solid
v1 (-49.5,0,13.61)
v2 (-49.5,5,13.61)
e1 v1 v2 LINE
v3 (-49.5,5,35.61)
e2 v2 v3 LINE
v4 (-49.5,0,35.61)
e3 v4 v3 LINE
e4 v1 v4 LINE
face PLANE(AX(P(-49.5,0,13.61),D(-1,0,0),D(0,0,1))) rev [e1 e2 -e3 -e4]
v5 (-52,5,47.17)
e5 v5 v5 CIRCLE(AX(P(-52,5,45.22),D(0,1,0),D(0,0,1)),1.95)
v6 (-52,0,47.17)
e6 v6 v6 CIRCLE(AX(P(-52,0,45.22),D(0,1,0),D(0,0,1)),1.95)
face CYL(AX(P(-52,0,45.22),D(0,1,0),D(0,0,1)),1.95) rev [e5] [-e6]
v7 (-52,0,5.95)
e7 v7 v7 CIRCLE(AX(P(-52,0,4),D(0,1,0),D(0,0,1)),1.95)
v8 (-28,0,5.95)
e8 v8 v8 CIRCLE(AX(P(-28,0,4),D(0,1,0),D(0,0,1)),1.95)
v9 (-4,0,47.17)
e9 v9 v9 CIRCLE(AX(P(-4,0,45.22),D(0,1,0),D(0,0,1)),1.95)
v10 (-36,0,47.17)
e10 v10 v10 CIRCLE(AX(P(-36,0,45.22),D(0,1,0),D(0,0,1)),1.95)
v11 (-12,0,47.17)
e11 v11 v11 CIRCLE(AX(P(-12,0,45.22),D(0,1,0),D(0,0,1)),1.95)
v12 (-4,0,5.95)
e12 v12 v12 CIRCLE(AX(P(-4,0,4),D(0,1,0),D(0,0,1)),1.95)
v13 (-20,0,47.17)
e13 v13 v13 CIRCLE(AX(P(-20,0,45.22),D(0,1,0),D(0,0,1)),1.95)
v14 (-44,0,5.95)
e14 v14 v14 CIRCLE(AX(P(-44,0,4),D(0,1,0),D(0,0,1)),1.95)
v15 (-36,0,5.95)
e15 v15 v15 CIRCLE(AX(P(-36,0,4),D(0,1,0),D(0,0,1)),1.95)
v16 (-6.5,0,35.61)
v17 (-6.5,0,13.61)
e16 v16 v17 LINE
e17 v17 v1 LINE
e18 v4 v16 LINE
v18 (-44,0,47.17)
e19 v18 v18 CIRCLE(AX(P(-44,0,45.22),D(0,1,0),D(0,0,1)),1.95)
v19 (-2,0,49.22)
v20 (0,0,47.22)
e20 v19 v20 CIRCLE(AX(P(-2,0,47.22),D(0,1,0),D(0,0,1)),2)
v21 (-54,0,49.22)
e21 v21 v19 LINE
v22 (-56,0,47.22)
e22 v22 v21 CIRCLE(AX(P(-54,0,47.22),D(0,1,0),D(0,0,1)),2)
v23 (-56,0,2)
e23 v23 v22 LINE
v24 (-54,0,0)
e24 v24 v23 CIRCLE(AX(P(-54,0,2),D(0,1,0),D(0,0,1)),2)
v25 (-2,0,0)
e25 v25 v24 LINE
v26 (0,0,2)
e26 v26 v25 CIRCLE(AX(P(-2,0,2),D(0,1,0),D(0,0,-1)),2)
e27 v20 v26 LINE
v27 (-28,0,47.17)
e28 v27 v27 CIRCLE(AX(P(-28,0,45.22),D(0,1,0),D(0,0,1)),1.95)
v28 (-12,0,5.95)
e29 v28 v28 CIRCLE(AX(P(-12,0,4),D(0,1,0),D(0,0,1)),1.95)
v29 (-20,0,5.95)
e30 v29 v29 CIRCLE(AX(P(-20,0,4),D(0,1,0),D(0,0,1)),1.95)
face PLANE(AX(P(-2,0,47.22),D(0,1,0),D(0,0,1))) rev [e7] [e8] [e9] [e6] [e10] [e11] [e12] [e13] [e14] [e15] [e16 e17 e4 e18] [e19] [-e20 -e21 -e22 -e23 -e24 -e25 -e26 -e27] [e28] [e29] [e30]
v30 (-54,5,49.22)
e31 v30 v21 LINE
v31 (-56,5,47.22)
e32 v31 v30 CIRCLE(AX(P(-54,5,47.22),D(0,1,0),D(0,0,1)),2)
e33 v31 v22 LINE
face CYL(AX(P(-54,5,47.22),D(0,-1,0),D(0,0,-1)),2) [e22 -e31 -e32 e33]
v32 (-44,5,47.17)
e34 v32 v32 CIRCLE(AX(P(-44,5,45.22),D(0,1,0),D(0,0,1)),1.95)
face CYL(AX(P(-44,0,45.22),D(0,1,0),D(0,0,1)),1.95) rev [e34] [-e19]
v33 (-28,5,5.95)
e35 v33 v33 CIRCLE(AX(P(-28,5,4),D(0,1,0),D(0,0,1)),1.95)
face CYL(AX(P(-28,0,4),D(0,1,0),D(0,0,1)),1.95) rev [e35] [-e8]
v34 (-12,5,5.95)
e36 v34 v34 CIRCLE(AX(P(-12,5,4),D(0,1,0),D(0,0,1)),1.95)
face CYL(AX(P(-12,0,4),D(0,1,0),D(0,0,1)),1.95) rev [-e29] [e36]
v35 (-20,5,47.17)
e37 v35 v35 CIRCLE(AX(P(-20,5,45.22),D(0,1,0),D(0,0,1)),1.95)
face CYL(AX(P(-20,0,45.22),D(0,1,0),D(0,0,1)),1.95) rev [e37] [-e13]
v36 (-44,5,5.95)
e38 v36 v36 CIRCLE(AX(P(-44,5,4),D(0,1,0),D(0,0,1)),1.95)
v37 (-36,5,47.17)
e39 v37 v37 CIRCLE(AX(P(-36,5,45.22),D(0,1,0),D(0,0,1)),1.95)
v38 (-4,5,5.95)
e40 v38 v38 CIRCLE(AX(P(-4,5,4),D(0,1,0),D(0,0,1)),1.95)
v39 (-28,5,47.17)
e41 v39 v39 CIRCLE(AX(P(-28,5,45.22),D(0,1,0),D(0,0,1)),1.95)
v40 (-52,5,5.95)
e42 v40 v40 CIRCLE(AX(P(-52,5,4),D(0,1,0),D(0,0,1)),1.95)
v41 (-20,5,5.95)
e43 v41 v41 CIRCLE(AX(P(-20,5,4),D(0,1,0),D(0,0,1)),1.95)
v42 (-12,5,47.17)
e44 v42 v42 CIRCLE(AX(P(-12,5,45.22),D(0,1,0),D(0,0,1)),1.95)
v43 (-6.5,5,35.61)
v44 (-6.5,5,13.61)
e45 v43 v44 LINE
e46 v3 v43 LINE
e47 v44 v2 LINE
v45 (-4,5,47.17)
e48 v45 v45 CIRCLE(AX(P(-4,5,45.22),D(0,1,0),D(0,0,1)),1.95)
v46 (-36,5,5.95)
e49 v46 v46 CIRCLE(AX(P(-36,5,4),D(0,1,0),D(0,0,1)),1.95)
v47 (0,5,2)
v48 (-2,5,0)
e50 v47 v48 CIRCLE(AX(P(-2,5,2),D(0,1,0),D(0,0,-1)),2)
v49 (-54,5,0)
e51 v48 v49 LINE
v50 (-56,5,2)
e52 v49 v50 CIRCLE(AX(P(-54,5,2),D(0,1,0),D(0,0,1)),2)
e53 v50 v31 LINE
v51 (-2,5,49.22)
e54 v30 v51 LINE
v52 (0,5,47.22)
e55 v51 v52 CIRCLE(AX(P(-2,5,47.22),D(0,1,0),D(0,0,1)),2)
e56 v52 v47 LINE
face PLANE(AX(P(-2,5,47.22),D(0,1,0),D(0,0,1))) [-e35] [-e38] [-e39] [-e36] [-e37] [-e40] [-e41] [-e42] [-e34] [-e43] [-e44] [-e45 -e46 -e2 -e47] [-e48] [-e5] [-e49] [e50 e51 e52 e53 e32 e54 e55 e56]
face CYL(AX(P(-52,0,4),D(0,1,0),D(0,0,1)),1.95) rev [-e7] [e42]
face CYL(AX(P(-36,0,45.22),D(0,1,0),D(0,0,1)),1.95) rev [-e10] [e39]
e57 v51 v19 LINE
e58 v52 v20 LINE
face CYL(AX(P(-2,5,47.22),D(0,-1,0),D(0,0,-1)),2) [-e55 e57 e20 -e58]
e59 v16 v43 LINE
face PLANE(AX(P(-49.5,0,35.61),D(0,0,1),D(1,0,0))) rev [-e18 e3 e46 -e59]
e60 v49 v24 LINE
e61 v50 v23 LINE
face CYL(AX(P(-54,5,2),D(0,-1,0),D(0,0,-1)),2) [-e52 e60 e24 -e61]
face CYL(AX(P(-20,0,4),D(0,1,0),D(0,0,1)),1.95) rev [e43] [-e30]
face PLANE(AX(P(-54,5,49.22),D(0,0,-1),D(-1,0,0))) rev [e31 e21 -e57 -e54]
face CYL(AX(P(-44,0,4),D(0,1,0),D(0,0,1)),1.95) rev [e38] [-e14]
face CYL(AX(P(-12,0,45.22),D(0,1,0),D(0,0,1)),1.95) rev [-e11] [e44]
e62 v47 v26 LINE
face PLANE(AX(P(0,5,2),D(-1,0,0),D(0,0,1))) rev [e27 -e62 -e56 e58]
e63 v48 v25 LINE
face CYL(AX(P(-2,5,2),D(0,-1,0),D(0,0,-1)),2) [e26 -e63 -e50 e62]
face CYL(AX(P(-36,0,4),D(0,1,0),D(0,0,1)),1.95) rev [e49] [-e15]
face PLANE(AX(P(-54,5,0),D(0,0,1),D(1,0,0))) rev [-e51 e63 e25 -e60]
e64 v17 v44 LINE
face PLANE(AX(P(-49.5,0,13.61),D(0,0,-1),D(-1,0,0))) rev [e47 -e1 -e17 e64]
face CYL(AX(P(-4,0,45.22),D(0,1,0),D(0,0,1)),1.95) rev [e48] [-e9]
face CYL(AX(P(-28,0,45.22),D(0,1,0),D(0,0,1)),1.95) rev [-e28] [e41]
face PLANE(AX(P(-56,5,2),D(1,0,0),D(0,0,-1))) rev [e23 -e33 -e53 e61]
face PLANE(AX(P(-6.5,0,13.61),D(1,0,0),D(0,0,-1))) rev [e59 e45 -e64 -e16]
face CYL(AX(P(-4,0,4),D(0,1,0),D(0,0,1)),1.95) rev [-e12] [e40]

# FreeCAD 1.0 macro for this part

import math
import FreeCAD as App
import Part
import Sketcher
Q = App.Units.Quantity

doc = App.newDocument("Part")
params = doc.addObject("Spreadsheet::Sheet", "Params")
for row, (alias, value) in enumerate([
    ("sketch1_radius", "2 mm"),
    ("sketch1_width", "52 mm"),
    ("sketch1_height", "45.22 mm"),
    ("pad1_length", "5 mm"),
    ("sketch2_diameter", "3.9 mm"),
    ("sketch2_width", "43 mm"),
    ("sketch2_height", "22 mm"),
], start=1):
    params.set(f"A{row}", alias)
    params.set(f"B{row}", "=" + value)
    params.setAlias(f"B{row}", alias)

body = doc.addObject("PartDesign::Body", "Body")

# Sketch on XZ plane
sketch1 = body.newObject("Sketcher::SketchObject", "Sketch")
sketch1.AttachmentSupport = (doc.getObject("XZ_Plane"), [""])
sketch1.MapMode = "FlatFace"
sketch1.addGeometry(Part.LineSegment(App.Vector(-2, 0, 0), App.Vector(-54, 0, 0)), False)
sketch1.addGeometry(Part.ArcOfCircle(Part.Circle(App.Vector(-54, 2, 0), App.Vector(0, 0, 1), 2), math.radians(-180), math.radians(-90)), False)
sketch1.addGeometry(Part.LineSegment(App.Vector(-56, 2, 0), App.Vector(-56, 47.2, 0)), False)
sketch1.addGeometry(Part.ArcOfCircle(Part.Circle(App.Vector(-54, 47.2, 0), App.Vector(0, 0, 1), 2), math.radians(90), math.radians(180)), False)
sketch1.addGeometry(Part.LineSegment(App.Vector(-54, 49.2, 0), App.Vector(-2, 49.2, 0)), False)
sketch1.addGeometry(Part.ArcOfCircle(Part.Circle(App.Vector(-2, 47.2, 0), App.Vector(0, 0, 1), 2), math.radians(0), math.radians(90)), False)
sketch1.addGeometry(Part.LineSegment(App.Vector(0, 47.2, 0), App.Vector(0, 2, 0)), False)
sketch1.addGeometry(Part.ArcOfCircle(Part.Circle(App.Vector(-2, 2, 0), App.Vector(0, 0, 1), 2), math.radians(-90), math.radians(0)), False)
sketch1.addConstraint(Sketcher.Constraint("Tangent", 0, 2, 1, 2))
sketch1.addConstraint(Sketcher.Constraint("Tangent", 1, 1, 2, 1))
sketch1.addConstraint(Sketcher.Constraint("Tangent", 2, 2, 3, 2))
sketch1.addConstraint(Sketcher.Constraint("Tangent", 3, 1, 4, 1))
sketch1.addConstraint(Sketcher.Constraint("Tangent", 4, 2, 5, 2))
sketch1.addConstraint(Sketcher.Constraint("Tangent", 5, 1, 6, 1))
sketch1.addConstraint(Sketcher.Constraint("Tangent", 6, 2, 7, 2))
sketch1.addConstraint(Sketcher.Constraint("Tangent", 7, 1, 0, 1))
sketch1.addConstraint(Sketcher.Constraint("Horizontal", 0))
sketch1.addConstraint(Sketcher.Constraint("Vertical", 2))
sketch1.addConstraint(Sketcher.Constraint("Horizontal", 4))
sketch1.addConstraint(Sketcher.Constraint("Vertical", 6))
sketch1.addConstraint(Sketcher.Constraint("Equal", 1, 3))
sketch1.addConstraint(Sketcher.Constraint("Equal", 3, 5))
sketch1.addConstraint(Sketcher.Constraint("Equal", 5, 7))
sketch1.addConstraint(Sketcher.Constraint("PointOnObject", 0, 2, -1))
sketch1.addConstraint(Sketcher.Constraint("PointOnObject", 5, 1, -2))
sketch1.addConstraint(Sketcher.Constraint("Radius", 1, Q("2 mm")))
sketch1.addConstraint(Sketcher.Constraint("DistanceX", 0, 2, 0, 1, Q("52 mm")))
sketch1.addConstraint(Sketcher.Constraint("DistanceY", 2, 1, 2, 2, Q("45.22 mm")))
sketch1.setExpression("Constraints[17]", "Params.sketch1_radius")
sketch1.setExpression("Constraints[18]", "Params.sketch1_width")
sketch1.setExpression("Constraints[19]", "Params.sketch1_height")
pad1 = body.newObject("PartDesign::Pad", "Pad")
pad1.Profile = sketch1
pad1.setExpression("Length", "Params.pad1_length")
pad1.Reversed = True

# Sketch on XZ plane
sketch2 = body.newObject("Sketcher::SketchObject", "Sketch001")
sketch2.AttachmentSupport = (doc.getObject("XZ_Plane"), [""])
sketch2.MapMode = "FlatFace"
sketch2.AttachmentOffset = App.Placement(App.Vector(0, 0, -5), App.Rotation())
sketch2.addGeometry(Part.Circle(App.Vector(-4, 4, 0), App.Vector(0, 0, 1), 1.9), False)
sketch2.addGeometry(Part.Circle(App.Vector(-12, 4, 0), App.Vector(0, 0, 1), 1.9), False)
sketch2.addGeometry(Part.Circle(App.Vector(18, 4, 0), App.Vector(0, 0, 1), 1.9), False)
sketch2.addGeometry(Part.Circle(App.Vector(-68, 4, 0), App.Vector(0, 0, 1), 1.9), False)
sketch2.addGeometry(Part.Circle(App.Vector(-60, 4, 0), App.Vector(0, 0, 1), 1.9), False)
sketch2.addGeometry(Part.Circle(App.Vector(-52, 4, 0), App.Vector(0, 0, 1), 1.9), False)
sketch2.addGeometry(Part.Circle(App.Vector(-44, 4, 0), App.Vector(0, 0, 1), 1.9), False)
sketch2.addGeometry(Part.Circle(App.Vector(-36, 4, 0), App.Vector(0, 0, 1), 1.9), False)
sketch2.addGeometry(Part.Circle(App.Vector(-28, 4, 0), App.Vector(0, 0, 1), 1.9), False)
sketch2.addGeometry(Part.Circle(App.Vector(-20, 4, 0), App.Vector(0, 0, 1), 1.9), False)
sketch2.addGeometry(Part.Circle(App.Vector(-4, 45.2, 0), App.Vector(0, 0, 1), 1.9), False)
sketch2.addGeometry(Part.Circle(App.Vector(-12, 45.2, 0), App.Vector(0, 0, 1), 1.9), False)
sketch2.addGeometry(Part.Circle(App.Vector(18, 45.2, 0), App.Vector(0, 0, 1), 1.9), False)
sketch2.addGeometry(Part.Circle(App.Vector(-68, 45.2, 0), App.Vector(0, 0, 1), 1.9), False)
sketch2.addGeometry(Part.Circle(App.Vector(-60, 45.2, 0), App.Vector(0, 0, 1), 1.9), False)
sketch2.addGeometry(Part.Circle(App.Vector(-52, 45.2, 0), App.Vector(0, 0, 1), 1.9), False)
sketch2.addGeometry(Part.Circle(App.Vector(-44, 45.2, 0), App.Vector(0, 0, 1), 1.9), False)
sketch2.addGeometry(Part.Circle(App.Vector(-36, 45.2, 0), App.Vector(0, 0, 1), 1.9), False)
sketch2.addGeometry(Part.Circle(App.Vector(-28, 45.2, 0), App.Vector(0, 0, 1), 1.9), False)
sketch2.addGeometry(Part.Circle(App.Vector(-20, 45.2, 0), App.Vector(0, 0, 1), 1.9), False)
sketch2.addGeometry(Part.LineSegment(App.Vector(-49.5, 13.6, 0), App.Vector(-49.5, 35.6, 0)), False)
sketch2.addGeometry(Part.LineSegment(App.Vector(-49.5, 35.6, 0), App.Vector(-6.5, 35.6, 0)), False)
sketch2.addGeometry(Part.LineSegment(App.Vector(-6.5, 35.6, 0), App.Vector(-6.5, 13.6, 0)), False)
sketch2.addGeometry(Part.LineSegment(App.Vector(-6.5, 13.6, 0), App.Vector(-49.5, 13.6, 0)), False)
sketch2.addConstraint(Sketcher.Constraint("Coincident", 20, 2, 21, 1))
sketch2.addConstraint(Sketcher.Constraint("Coincident", 21, 2, 22, 1))
sketch2.addConstraint(Sketcher.Constraint("Coincident", 22, 2, 23, 1))
sketch2.addConstraint(Sketcher.Constraint("Coincident", 23, 2, 20, 1))
sketch2.addConstraint(Sketcher.Constraint("Vertical", 20))
sketch2.addConstraint(Sketcher.Constraint("Horizontal", 21))
sketch2.addConstraint(Sketcher.Constraint("Vertical", 22))
sketch2.addConstraint(Sketcher.Constraint("Horizontal", 23))
sketch2.addConstraint(Sketcher.Constraint("Equal", 0, 1))
sketch2.addConstraint(Sketcher.Constraint("Equal", 1, 2))
sketch2.addConstraint(Sketcher.Constraint("Equal", 2, 3))
sketch2.addConstraint(Sketcher.Constraint("Equal", 3, 4))
sketch2.addConstraint(Sketcher.Constraint("Equal", 4, 5))
sketch2.addConstraint(Sketcher.Constraint("Equal", 5, 6))
sketch2.addConstraint(Sketcher.Constraint("Equal", 6, 7))
sketch2.addConstraint(Sketcher.Constraint("Equal", 7, 8))
sketch2.addConstraint(Sketcher.Constraint("Equal", 8, 9))
sketch2.addConstraint(Sketcher.Constraint("Equal", 9, 10))
sketch2.addConstraint(Sketcher.Constraint("Equal", 10, 11))
sketch2.addConstraint(Sketcher.Constraint("Equal", 11, 12))
sketch2.addConstraint(Sketcher.Constraint("Equal", 12, 13))
sketch2.addConstraint(Sketcher.Constraint("Equal", 13, 14))
sketch2.addConstraint(Sketcher.Constraint("Equal", 14, 15))
sketch2.addConstraint(Sketcher.Constraint("Equal", 15, 16))
sketch2.addConstraint(Sketcher.Constraint("Equal", 16, 17))
sketch2.addConstraint(Sketcher.Constraint("Equal", 17, 18))
sketch2.addConstraint(Sketcher.Constraint("Equal", 18, 19))
sketch2.addConstraint(Sketcher.Constraint("Horizontal", 0, 3, 1, 3))
sketch2.addConstraint(Sketcher.Constraint("Horizontal", 1, 3, 2, 3))
sketch2.addConstraint(Sketcher.Constraint("Horizontal", 2, 3, 3, 3))
sketch2.addConstraint(Sketcher.Constraint("Horizontal", 3, 3, 4, 3))
sketch2.addConstraint(Sketcher.Constraint("Horizontal", 4, 3, 5, 3))
sketch2.addConstraint(Sketcher.Constraint("Horizontal", 5, 3, 6, 3))
sketch2.addConstraint(Sketcher.Constraint("Horizontal", 6, 3, 7, 3))
sketch2.addConstraint(Sketcher.Constraint("Horizontal", 7, 3, 8, 3))
sketch2.addConstraint(Sketcher.Constraint("Horizontal", 8, 3, 9, 3))
sketch2.addConstraint(Sketcher.Constraint("Horizontal", 10, 3, 11, 3))
sketch2.addConstraint(Sketcher.Constraint("Horizontal", 11, 3, 12, 3))
sketch2.addConstraint(Sketcher.Constraint("Horizontal", 12, 3, 13, 3))
sketch2.addConstraint(Sketcher.Constraint("Horizontal", 13, 3, 14, 3))
sketch2.addConstraint(Sketcher.Constraint("Horizontal", 14, 3, 15, 3))
sketch2.addConstraint(Sketcher.Constraint("Horizontal", 15, 3, 16, 3))
sketch2.addConstraint(Sketcher.Constraint("Horizontal", 16, 3, 17, 3))
sketch2.addConstraint(Sketcher.Constraint("Horizontal", 17, 3, 18, 3))
sketch2.addConstraint(Sketcher.Constraint("Horizontal", 18, 3, 19, 3))
sketch2.addConstraint(Sketcher.Constraint("Vertical", 0, 3, 10, 3))
sketch2.addConstraint(Sketcher.Constraint("Vertical", 1, 3, 11, 3))
sketch2.addConstraint(Sketcher.Constraint("Vertical", 2, 3, 12, 3))
sketch2.addConstraint(Sketcher.Constraint("Vertical", 3, 3, 13, 3))
sketch2.addConstraint(Sketcher.Constraint("Vertical", 4, 3, 14, 3))
sketch2.addConstraint(Sketcher.Constraint("Vertical", 5, 3, 15, 3))
sketch2.addConstraint(Sketcher.Constraint("Vertical", 6, 3, 16, 3))
sketch2.addConstraint(Sketcher.Constraint("Vertical", 7, 3, 17, 3))
sketch2.addConstraint(Sketcher.Constraint("Vertical", 8, 3, 18, 3))
sketch2.addConstraint(Sketcher.Constraint("Vertical", 9, 3, 19, 3))
sketch2.addConstraint(Sketcher.Constraint("Diameter", 0, Q("3.9 mm")))
sketch2.addConstraint(Sketcher.Constraint("DistanceX", 21, 1, 21, 2, Q("43 mm")))
sketch2.addConstraint(Sketcher.Constraint("DistanceY", 20, 1, 20, 2, Q("22 mm")))
sketch2.addConstraint(Sketcher.Constraint("DistanceX", 0, 3, -1, 1, Q("4 mm")))
sketch2.addConstraint(Sketcher.Constraint("DistanceY", -1, 1, 0, 3, Q("4 mm")))
sketch2.addConstraint(Sketcher.Constraint("DistanceX", 1, 3, -1, 1, Q("12 mm")))
sketch2.addConstraint(Sketcher.Constraint("DistanceX", -1, 1, 2, 3, Q("18 mm")))
sketch2.addConstraint(Sketcher.Constraint("DistanceX", 3, 3, -1, 1, Q("68 mm")))
sketch2.addConstraint(Sketcher.Constraint("DistanceX", 4, 3, -1, 1, Q("60 mm")))
sketch2.addConstraint(Sketcher.Constraint("DistanceX", 5, 3, -1, 1, Q("52 mm")))
sketch2.addConstraint(Sketcher.Constraint("DistanceX", 6, 3, -1, 1, Q("44 mm")))
sketch2.addConstraint(Sketcher.Constraint("DistanceX", 7, 3, -1, 1, Q("36 mm")))
sketch2.addConstraint(Sketcher.Constraint("DistanceX", 8, 3, -1, 1, Q("28 mm")))
sketch2.addConstraint(Sketcher.Constraint("DistanceX", 9, 3, -1, 1, Q("20 mm")))
sketch2.addConstraint(Sketcher.Constraint("DistanceX", 20, 2, -1, 1, Q("49.5 mm")))
sketch2.addConstraint(Sketcher.Constraint("DistanceY", -1, 1, 10, 3, Q("45.22 mm")))
sketch2.addConstraint(Sketcher.Constraint("DistanceY", -1, 1, 20, 2, Q("35.61 mm")))
sketch2.setExpression("Constraints[55]", "Params.sketch2_diameter")
sketch2.setExpression("Constraints[56]", "Params.sketch2_width")
sketch2.setExpression("Constraints[57]", "Params.sketch2_height")
pocket1 = body.newObject("PartDesign::Pocket", "Pocket")
pocket1.Profile = sketch2
pocket1.Type = "ThroughAll"
pocket1.Reversed = True

doc.recompute()
